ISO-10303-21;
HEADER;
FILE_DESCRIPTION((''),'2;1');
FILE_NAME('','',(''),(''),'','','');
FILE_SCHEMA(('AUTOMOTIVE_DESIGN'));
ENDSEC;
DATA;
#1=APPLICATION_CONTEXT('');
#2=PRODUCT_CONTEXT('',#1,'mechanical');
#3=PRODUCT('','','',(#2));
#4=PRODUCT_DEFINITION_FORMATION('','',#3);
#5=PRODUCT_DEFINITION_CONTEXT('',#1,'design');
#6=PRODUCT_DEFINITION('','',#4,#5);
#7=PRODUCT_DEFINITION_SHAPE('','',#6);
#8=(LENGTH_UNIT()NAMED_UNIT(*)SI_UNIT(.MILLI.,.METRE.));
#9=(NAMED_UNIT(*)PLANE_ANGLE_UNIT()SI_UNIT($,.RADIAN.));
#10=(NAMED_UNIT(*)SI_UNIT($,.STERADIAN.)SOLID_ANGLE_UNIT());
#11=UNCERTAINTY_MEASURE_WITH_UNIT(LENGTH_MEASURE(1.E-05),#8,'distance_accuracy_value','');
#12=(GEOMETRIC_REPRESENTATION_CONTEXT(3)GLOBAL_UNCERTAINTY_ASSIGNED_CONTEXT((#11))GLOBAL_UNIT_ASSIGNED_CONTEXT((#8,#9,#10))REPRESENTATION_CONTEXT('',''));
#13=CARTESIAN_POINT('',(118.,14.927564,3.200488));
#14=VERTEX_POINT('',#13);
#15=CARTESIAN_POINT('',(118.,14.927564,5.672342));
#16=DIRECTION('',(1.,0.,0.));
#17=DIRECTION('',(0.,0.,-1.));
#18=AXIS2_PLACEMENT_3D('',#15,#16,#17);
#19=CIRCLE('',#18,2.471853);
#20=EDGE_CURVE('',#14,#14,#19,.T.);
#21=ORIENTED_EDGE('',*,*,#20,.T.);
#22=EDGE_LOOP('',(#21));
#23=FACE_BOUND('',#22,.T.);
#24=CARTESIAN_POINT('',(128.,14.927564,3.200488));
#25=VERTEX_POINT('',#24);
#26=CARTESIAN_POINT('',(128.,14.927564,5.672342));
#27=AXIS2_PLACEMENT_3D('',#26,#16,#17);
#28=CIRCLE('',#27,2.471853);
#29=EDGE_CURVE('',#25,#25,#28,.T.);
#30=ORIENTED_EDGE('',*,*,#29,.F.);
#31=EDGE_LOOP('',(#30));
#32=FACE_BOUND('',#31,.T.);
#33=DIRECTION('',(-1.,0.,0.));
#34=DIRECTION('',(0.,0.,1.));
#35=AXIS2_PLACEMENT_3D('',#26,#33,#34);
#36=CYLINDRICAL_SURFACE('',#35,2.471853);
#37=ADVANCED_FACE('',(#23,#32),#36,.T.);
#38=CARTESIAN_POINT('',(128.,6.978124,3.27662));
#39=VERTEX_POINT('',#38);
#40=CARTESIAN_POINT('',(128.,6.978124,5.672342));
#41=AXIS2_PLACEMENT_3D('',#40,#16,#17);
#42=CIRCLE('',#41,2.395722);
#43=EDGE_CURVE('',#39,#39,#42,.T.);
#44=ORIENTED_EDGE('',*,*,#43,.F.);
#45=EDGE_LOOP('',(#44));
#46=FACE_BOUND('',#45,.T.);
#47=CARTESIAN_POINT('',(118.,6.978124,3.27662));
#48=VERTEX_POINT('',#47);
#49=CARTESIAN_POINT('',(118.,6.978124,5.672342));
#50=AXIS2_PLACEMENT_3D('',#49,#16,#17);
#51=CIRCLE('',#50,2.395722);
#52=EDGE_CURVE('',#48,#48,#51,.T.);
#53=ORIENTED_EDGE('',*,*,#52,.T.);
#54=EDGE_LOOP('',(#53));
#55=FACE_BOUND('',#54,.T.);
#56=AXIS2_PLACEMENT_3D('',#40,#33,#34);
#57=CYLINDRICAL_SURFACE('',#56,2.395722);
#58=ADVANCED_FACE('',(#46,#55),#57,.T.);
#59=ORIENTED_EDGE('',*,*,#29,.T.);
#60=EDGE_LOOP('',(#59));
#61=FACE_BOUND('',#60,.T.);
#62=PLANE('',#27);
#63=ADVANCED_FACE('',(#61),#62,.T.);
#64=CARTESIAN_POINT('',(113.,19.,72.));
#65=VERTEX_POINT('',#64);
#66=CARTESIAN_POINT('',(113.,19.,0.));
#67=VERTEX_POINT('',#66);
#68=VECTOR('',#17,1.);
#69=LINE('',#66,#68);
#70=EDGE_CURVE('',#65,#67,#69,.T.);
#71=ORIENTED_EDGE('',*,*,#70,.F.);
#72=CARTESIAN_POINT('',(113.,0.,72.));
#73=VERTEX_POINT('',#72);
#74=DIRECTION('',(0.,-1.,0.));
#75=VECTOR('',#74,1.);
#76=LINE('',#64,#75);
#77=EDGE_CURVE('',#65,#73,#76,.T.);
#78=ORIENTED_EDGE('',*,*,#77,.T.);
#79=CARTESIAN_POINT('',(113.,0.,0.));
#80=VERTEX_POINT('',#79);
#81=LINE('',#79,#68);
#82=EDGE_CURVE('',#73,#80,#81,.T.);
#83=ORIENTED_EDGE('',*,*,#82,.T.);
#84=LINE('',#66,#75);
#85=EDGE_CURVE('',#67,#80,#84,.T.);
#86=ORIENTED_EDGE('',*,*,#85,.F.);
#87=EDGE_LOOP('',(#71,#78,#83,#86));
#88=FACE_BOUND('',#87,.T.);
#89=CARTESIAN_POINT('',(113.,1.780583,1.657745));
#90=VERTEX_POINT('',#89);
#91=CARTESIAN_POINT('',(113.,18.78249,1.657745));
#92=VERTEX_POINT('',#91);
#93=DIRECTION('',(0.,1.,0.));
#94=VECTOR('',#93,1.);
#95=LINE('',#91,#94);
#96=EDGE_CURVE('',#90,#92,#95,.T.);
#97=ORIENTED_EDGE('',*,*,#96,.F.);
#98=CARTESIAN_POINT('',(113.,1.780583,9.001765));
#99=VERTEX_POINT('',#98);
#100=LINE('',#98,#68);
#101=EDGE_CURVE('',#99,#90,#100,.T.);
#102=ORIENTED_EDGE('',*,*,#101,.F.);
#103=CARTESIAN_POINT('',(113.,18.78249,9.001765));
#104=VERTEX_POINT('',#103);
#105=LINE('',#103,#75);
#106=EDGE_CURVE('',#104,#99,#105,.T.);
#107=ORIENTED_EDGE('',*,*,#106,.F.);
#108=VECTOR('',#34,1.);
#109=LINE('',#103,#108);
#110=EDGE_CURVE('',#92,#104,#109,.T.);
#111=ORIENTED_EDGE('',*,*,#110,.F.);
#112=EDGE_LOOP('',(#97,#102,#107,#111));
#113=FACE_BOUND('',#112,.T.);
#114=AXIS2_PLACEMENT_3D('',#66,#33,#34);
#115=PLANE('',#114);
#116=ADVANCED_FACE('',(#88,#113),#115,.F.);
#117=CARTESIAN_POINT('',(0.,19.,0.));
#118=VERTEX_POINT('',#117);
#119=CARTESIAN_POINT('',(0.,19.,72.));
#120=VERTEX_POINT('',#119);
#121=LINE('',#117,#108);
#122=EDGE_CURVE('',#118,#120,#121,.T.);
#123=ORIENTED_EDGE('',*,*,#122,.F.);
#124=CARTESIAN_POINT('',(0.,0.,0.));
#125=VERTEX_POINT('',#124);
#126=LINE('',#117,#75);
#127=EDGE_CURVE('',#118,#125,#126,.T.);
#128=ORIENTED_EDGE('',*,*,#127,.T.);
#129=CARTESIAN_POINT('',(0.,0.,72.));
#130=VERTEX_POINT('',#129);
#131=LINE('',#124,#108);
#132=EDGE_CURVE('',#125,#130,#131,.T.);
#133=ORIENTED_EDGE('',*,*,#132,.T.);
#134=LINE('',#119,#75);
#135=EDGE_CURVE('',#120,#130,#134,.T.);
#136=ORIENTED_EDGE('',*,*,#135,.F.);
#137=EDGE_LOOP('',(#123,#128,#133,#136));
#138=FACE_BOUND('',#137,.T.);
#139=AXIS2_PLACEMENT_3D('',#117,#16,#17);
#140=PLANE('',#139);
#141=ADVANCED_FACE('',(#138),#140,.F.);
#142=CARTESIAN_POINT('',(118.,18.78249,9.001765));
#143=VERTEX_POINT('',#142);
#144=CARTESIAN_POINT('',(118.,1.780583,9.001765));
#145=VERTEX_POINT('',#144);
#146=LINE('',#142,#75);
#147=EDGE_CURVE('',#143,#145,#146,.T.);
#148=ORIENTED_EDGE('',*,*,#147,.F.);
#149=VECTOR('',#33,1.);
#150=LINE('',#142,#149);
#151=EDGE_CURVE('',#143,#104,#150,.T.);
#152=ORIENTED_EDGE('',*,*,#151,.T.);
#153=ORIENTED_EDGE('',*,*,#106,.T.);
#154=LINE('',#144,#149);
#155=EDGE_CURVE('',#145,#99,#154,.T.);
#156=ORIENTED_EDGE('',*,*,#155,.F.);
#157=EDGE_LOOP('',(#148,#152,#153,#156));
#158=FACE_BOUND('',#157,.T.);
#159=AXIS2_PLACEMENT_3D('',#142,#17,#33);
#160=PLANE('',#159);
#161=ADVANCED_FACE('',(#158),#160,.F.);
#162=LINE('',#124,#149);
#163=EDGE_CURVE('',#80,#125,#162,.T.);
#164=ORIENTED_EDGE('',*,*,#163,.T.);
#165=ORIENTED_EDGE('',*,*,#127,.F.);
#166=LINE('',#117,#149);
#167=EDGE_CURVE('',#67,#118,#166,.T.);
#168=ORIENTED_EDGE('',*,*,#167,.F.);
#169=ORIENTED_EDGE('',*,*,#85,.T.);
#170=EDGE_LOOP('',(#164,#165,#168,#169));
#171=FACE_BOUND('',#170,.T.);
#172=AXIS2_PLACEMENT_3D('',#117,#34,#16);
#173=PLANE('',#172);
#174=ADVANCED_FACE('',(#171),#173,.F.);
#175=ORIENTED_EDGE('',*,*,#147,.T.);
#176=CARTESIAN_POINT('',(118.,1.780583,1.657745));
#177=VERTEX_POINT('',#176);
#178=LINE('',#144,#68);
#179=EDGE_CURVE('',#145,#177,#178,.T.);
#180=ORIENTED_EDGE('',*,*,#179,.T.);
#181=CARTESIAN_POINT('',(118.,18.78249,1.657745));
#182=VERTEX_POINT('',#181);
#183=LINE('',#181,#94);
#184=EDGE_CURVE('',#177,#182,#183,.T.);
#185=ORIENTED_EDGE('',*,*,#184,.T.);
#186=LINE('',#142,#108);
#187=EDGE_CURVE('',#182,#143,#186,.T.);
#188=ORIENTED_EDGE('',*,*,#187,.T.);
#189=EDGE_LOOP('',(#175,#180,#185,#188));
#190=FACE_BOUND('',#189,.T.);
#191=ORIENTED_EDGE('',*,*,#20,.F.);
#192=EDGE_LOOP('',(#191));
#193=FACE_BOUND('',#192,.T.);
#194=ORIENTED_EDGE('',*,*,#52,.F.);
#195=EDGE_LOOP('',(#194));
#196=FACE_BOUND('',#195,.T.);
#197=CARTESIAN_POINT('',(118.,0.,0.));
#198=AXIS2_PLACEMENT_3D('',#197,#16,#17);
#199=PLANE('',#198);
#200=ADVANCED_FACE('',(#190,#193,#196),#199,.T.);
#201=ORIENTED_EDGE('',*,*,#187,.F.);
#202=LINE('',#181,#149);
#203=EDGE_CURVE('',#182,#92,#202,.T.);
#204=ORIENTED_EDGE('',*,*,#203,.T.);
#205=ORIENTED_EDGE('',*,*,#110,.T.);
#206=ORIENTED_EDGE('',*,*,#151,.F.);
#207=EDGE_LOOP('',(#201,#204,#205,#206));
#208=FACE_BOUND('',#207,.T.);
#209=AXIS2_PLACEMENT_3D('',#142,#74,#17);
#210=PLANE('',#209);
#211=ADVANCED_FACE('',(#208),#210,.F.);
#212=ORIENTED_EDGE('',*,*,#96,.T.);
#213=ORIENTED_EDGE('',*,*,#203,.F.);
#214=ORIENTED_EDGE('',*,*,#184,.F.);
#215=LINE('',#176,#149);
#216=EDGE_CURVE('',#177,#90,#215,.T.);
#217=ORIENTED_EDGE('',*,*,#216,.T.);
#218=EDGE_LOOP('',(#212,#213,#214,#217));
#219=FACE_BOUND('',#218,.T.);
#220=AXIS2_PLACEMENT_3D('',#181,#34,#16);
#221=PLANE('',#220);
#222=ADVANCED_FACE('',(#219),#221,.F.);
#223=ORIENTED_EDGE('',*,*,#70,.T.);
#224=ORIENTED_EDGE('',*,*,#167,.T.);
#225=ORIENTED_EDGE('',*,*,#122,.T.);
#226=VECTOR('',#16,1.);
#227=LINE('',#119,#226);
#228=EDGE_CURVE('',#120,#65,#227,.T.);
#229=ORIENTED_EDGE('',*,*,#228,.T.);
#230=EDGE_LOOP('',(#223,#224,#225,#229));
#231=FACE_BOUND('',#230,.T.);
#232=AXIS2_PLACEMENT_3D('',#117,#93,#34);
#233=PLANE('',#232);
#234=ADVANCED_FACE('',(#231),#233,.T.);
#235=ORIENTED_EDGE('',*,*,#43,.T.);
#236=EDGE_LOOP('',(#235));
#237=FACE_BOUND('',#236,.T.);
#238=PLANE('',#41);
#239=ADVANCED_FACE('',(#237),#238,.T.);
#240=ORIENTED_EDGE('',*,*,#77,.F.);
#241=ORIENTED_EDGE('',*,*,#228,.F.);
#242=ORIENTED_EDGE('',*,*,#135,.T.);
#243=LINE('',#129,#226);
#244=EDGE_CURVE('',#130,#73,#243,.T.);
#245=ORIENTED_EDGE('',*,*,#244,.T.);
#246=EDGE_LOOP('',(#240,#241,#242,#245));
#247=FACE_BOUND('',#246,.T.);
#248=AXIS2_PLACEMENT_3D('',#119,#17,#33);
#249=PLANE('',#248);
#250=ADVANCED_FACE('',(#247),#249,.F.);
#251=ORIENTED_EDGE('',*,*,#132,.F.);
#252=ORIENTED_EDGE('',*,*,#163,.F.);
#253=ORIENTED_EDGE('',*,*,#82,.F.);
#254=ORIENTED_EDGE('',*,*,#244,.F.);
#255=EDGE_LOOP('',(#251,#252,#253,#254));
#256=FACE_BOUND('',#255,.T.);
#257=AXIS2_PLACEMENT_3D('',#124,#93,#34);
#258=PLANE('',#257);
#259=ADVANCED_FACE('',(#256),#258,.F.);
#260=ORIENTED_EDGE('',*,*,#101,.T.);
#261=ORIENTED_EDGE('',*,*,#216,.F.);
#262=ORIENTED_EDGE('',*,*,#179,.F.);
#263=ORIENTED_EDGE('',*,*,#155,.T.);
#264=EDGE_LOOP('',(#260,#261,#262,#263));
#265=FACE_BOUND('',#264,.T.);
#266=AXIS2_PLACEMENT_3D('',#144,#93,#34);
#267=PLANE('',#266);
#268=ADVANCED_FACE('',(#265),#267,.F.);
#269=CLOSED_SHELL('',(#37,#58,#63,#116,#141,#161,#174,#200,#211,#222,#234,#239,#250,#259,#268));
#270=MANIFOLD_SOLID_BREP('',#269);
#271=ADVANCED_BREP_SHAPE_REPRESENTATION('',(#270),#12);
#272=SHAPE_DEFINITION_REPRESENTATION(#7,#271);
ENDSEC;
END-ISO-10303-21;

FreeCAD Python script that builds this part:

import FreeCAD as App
import Part
import Sketcher
Q = App.Units.Quantity

doc = App.newDocument("Part")
body = doc.addObject("PartDesign::Body", "Body")

# Sketch on XZ plane
sketch1 = doc.addObject("Sketcher::SketchObject", "Sketch")
body.addObject(sketch1)
sketch1.AttachmentSupport = (doc.XZ_Plane, [""])
sketch1.MapMode = "FlatFace"
sketch1.addGeometry([
    Part.LineSegment(App.Vector(0, 0, 0), App.Vector(0, 72, 0)),
    Part.LineSegment(App.Vector(0, 72, 0), App.Vector(113, 72, 0)),
    Part.LineSegment(App.Vector(113, 72, 0), App.Vector(113, 0, 0)),
    Part.LineSegment(App.Vector(113, 0, 0), App.Vector(0, 0, 0)),
], False)
sketch1.addConstraint([
    Sketcher.Constraint("Coincident", 0, 2, 1, 1),
    Sketcher.Constraint("Coincident", 1, 2, 2, 1),
    Sketcher.Constraint("Coincident", 2, 2, 3, 1),
    Sketcher.Constraint("Coincident", 3, 2, 0, 1),
    Sketcher.Constraint("Vertical", 0),
    Sketcher.Constraint("Horizontal", 1),
    Sketcher.Constraint("Vertical", 2),
    Sketcher.Constraint("Horizontal", 3),
    Sketcher.Constraint("Coincident", 3, 2, -1, 1),
    Sketcher.Constraint("DistanceX", 1, 1, 1, 2, Q("113 mm")),
    Sketcher.Constraint("DistanceY", 0, 1, 0, 2, Q("72 mm")),
])
pad1 = doc.addObject("PartDesign::Pad", "Pad")
body.addObject(pad1)
pad1.Profile = sketch1
pad1.Length = 19
pad1.Reversed = True

# Sketch on YZ plane
sketch2 = doc.addObject("Sketcher::SketchObject", "Sketch001")
body.addObject(sketch2)
sketch2.AttachmentSupport = (doc.YZ_Plane, [""])
sketch2.MapMode = "FlatFace"
sketch2.AttachmentOffset = App.Placement(App.Vector(0, 0, 113), App.Rotation())
sketch2.addGeometry([
    Part.LineSegment(App.Vector(18.78249, 9.001765, 0), App.Vector(1.780583, 9.001765, 0)),
    Part.LineSegment(App.Vector(1.780583, 9.001765, 0), App.Vector(1.780583, 1.657745, 0)),
    Part.LineSegment(App.Vector(1.780583, 1.657745, 0), App.Vector(18.78249, 1.657745, 0)),
    Part.LineSegment(App.Vector(18.78249, 1.657745, 0), App.Vector(18.78249, 9.001765, 0)),
], False)
sketch2.addConstraint([
    Sketcher.Constraint("Coincident", 0, 2, 1, 1),
    Sketcher.Constraint("Coincident", 1, 2, 2, 1),
    Sketcher.Constraint("Coincident", 2, 2, 3, 1),
    Sketcher.Constraint("Coincident", 3, 2, 0, 1),
    Sketcher.Constraint("Horizontal", 0),
    Sketcher.Constraint("Vertical", 1),
    Sketcher.Constraint("Horizontal", 2),
    Sketcher.Constraint("Vertical", 3),
    Sketcher.Constraint("DistanceY", 1, 2, 1, 1, Q("7.344019 mm")),
    Sketcher.Constraint("DistanceX", 0, 2, 0, 1, Q("17.001907 mm")),
    Sketcher.Constraint("DistanceX", -1, 1, 2, 2, Q("18.78249 mm")),
    Sketcher.Constraint("DistanceY", -1, 1, 0, 2, Q("9.001765 mm")),
])
pad2 = doc.addObject("PartDesign::Pad", "Pad001")
body.addObject(pad2)
pad2.Profile = sketch2
pad2.Length = 5

# Sketch on YZ plane
sketch3 = doc.addObject("Sketcher::SketchObject", "Sketch002")
body.addObject(sketch3)
sketch3.AttachmentSupport = (doc.YZ_Plane, [""])
sketch3.MapMode = "FlatFace"
sketch3.AttachmentOffset = App.Placement(App.Vector(0, 0, 118), App.Rotation())
sketch3.addGeometry([
    Part.Circle(App.Vector(14.927564, 5.672342, 0), App.Vector(0, 0, 1), 2.471853),
    Part.Circle(App.Vector(6.978124, 5.672342, 0), App.Vector(0, 0, 1), 2.395722),
], False)
sketch3.addConstraint([
    Sketcher.Constraint("Horizontal", 0, 3, 1, 3),
    Sketcher.Constraint("Diameter", 0, Q("4.943706 mm")),
    Sketcher.Constraint("Diameter", 1, Q("4.791443 mm")),
    Sketcher.Constraint("DistanceY", -1, 1, 0, 3, Q("5.672342 mm")),
    Sketcher.Constraint("DistanceX", 1, 3, 0, 3, Q("7.94944 mm")),
    Sketcher.Constraint("DistanceX", -1, 1, 0, 3, Q("14.927564 mm")),
])
pad3 = doc.addObject("PartDesign::Pad", "Pad002")
body.addObject(pad3)
pad3.Profile = sketch3
pad3.Length = 10

doc.recompute()
